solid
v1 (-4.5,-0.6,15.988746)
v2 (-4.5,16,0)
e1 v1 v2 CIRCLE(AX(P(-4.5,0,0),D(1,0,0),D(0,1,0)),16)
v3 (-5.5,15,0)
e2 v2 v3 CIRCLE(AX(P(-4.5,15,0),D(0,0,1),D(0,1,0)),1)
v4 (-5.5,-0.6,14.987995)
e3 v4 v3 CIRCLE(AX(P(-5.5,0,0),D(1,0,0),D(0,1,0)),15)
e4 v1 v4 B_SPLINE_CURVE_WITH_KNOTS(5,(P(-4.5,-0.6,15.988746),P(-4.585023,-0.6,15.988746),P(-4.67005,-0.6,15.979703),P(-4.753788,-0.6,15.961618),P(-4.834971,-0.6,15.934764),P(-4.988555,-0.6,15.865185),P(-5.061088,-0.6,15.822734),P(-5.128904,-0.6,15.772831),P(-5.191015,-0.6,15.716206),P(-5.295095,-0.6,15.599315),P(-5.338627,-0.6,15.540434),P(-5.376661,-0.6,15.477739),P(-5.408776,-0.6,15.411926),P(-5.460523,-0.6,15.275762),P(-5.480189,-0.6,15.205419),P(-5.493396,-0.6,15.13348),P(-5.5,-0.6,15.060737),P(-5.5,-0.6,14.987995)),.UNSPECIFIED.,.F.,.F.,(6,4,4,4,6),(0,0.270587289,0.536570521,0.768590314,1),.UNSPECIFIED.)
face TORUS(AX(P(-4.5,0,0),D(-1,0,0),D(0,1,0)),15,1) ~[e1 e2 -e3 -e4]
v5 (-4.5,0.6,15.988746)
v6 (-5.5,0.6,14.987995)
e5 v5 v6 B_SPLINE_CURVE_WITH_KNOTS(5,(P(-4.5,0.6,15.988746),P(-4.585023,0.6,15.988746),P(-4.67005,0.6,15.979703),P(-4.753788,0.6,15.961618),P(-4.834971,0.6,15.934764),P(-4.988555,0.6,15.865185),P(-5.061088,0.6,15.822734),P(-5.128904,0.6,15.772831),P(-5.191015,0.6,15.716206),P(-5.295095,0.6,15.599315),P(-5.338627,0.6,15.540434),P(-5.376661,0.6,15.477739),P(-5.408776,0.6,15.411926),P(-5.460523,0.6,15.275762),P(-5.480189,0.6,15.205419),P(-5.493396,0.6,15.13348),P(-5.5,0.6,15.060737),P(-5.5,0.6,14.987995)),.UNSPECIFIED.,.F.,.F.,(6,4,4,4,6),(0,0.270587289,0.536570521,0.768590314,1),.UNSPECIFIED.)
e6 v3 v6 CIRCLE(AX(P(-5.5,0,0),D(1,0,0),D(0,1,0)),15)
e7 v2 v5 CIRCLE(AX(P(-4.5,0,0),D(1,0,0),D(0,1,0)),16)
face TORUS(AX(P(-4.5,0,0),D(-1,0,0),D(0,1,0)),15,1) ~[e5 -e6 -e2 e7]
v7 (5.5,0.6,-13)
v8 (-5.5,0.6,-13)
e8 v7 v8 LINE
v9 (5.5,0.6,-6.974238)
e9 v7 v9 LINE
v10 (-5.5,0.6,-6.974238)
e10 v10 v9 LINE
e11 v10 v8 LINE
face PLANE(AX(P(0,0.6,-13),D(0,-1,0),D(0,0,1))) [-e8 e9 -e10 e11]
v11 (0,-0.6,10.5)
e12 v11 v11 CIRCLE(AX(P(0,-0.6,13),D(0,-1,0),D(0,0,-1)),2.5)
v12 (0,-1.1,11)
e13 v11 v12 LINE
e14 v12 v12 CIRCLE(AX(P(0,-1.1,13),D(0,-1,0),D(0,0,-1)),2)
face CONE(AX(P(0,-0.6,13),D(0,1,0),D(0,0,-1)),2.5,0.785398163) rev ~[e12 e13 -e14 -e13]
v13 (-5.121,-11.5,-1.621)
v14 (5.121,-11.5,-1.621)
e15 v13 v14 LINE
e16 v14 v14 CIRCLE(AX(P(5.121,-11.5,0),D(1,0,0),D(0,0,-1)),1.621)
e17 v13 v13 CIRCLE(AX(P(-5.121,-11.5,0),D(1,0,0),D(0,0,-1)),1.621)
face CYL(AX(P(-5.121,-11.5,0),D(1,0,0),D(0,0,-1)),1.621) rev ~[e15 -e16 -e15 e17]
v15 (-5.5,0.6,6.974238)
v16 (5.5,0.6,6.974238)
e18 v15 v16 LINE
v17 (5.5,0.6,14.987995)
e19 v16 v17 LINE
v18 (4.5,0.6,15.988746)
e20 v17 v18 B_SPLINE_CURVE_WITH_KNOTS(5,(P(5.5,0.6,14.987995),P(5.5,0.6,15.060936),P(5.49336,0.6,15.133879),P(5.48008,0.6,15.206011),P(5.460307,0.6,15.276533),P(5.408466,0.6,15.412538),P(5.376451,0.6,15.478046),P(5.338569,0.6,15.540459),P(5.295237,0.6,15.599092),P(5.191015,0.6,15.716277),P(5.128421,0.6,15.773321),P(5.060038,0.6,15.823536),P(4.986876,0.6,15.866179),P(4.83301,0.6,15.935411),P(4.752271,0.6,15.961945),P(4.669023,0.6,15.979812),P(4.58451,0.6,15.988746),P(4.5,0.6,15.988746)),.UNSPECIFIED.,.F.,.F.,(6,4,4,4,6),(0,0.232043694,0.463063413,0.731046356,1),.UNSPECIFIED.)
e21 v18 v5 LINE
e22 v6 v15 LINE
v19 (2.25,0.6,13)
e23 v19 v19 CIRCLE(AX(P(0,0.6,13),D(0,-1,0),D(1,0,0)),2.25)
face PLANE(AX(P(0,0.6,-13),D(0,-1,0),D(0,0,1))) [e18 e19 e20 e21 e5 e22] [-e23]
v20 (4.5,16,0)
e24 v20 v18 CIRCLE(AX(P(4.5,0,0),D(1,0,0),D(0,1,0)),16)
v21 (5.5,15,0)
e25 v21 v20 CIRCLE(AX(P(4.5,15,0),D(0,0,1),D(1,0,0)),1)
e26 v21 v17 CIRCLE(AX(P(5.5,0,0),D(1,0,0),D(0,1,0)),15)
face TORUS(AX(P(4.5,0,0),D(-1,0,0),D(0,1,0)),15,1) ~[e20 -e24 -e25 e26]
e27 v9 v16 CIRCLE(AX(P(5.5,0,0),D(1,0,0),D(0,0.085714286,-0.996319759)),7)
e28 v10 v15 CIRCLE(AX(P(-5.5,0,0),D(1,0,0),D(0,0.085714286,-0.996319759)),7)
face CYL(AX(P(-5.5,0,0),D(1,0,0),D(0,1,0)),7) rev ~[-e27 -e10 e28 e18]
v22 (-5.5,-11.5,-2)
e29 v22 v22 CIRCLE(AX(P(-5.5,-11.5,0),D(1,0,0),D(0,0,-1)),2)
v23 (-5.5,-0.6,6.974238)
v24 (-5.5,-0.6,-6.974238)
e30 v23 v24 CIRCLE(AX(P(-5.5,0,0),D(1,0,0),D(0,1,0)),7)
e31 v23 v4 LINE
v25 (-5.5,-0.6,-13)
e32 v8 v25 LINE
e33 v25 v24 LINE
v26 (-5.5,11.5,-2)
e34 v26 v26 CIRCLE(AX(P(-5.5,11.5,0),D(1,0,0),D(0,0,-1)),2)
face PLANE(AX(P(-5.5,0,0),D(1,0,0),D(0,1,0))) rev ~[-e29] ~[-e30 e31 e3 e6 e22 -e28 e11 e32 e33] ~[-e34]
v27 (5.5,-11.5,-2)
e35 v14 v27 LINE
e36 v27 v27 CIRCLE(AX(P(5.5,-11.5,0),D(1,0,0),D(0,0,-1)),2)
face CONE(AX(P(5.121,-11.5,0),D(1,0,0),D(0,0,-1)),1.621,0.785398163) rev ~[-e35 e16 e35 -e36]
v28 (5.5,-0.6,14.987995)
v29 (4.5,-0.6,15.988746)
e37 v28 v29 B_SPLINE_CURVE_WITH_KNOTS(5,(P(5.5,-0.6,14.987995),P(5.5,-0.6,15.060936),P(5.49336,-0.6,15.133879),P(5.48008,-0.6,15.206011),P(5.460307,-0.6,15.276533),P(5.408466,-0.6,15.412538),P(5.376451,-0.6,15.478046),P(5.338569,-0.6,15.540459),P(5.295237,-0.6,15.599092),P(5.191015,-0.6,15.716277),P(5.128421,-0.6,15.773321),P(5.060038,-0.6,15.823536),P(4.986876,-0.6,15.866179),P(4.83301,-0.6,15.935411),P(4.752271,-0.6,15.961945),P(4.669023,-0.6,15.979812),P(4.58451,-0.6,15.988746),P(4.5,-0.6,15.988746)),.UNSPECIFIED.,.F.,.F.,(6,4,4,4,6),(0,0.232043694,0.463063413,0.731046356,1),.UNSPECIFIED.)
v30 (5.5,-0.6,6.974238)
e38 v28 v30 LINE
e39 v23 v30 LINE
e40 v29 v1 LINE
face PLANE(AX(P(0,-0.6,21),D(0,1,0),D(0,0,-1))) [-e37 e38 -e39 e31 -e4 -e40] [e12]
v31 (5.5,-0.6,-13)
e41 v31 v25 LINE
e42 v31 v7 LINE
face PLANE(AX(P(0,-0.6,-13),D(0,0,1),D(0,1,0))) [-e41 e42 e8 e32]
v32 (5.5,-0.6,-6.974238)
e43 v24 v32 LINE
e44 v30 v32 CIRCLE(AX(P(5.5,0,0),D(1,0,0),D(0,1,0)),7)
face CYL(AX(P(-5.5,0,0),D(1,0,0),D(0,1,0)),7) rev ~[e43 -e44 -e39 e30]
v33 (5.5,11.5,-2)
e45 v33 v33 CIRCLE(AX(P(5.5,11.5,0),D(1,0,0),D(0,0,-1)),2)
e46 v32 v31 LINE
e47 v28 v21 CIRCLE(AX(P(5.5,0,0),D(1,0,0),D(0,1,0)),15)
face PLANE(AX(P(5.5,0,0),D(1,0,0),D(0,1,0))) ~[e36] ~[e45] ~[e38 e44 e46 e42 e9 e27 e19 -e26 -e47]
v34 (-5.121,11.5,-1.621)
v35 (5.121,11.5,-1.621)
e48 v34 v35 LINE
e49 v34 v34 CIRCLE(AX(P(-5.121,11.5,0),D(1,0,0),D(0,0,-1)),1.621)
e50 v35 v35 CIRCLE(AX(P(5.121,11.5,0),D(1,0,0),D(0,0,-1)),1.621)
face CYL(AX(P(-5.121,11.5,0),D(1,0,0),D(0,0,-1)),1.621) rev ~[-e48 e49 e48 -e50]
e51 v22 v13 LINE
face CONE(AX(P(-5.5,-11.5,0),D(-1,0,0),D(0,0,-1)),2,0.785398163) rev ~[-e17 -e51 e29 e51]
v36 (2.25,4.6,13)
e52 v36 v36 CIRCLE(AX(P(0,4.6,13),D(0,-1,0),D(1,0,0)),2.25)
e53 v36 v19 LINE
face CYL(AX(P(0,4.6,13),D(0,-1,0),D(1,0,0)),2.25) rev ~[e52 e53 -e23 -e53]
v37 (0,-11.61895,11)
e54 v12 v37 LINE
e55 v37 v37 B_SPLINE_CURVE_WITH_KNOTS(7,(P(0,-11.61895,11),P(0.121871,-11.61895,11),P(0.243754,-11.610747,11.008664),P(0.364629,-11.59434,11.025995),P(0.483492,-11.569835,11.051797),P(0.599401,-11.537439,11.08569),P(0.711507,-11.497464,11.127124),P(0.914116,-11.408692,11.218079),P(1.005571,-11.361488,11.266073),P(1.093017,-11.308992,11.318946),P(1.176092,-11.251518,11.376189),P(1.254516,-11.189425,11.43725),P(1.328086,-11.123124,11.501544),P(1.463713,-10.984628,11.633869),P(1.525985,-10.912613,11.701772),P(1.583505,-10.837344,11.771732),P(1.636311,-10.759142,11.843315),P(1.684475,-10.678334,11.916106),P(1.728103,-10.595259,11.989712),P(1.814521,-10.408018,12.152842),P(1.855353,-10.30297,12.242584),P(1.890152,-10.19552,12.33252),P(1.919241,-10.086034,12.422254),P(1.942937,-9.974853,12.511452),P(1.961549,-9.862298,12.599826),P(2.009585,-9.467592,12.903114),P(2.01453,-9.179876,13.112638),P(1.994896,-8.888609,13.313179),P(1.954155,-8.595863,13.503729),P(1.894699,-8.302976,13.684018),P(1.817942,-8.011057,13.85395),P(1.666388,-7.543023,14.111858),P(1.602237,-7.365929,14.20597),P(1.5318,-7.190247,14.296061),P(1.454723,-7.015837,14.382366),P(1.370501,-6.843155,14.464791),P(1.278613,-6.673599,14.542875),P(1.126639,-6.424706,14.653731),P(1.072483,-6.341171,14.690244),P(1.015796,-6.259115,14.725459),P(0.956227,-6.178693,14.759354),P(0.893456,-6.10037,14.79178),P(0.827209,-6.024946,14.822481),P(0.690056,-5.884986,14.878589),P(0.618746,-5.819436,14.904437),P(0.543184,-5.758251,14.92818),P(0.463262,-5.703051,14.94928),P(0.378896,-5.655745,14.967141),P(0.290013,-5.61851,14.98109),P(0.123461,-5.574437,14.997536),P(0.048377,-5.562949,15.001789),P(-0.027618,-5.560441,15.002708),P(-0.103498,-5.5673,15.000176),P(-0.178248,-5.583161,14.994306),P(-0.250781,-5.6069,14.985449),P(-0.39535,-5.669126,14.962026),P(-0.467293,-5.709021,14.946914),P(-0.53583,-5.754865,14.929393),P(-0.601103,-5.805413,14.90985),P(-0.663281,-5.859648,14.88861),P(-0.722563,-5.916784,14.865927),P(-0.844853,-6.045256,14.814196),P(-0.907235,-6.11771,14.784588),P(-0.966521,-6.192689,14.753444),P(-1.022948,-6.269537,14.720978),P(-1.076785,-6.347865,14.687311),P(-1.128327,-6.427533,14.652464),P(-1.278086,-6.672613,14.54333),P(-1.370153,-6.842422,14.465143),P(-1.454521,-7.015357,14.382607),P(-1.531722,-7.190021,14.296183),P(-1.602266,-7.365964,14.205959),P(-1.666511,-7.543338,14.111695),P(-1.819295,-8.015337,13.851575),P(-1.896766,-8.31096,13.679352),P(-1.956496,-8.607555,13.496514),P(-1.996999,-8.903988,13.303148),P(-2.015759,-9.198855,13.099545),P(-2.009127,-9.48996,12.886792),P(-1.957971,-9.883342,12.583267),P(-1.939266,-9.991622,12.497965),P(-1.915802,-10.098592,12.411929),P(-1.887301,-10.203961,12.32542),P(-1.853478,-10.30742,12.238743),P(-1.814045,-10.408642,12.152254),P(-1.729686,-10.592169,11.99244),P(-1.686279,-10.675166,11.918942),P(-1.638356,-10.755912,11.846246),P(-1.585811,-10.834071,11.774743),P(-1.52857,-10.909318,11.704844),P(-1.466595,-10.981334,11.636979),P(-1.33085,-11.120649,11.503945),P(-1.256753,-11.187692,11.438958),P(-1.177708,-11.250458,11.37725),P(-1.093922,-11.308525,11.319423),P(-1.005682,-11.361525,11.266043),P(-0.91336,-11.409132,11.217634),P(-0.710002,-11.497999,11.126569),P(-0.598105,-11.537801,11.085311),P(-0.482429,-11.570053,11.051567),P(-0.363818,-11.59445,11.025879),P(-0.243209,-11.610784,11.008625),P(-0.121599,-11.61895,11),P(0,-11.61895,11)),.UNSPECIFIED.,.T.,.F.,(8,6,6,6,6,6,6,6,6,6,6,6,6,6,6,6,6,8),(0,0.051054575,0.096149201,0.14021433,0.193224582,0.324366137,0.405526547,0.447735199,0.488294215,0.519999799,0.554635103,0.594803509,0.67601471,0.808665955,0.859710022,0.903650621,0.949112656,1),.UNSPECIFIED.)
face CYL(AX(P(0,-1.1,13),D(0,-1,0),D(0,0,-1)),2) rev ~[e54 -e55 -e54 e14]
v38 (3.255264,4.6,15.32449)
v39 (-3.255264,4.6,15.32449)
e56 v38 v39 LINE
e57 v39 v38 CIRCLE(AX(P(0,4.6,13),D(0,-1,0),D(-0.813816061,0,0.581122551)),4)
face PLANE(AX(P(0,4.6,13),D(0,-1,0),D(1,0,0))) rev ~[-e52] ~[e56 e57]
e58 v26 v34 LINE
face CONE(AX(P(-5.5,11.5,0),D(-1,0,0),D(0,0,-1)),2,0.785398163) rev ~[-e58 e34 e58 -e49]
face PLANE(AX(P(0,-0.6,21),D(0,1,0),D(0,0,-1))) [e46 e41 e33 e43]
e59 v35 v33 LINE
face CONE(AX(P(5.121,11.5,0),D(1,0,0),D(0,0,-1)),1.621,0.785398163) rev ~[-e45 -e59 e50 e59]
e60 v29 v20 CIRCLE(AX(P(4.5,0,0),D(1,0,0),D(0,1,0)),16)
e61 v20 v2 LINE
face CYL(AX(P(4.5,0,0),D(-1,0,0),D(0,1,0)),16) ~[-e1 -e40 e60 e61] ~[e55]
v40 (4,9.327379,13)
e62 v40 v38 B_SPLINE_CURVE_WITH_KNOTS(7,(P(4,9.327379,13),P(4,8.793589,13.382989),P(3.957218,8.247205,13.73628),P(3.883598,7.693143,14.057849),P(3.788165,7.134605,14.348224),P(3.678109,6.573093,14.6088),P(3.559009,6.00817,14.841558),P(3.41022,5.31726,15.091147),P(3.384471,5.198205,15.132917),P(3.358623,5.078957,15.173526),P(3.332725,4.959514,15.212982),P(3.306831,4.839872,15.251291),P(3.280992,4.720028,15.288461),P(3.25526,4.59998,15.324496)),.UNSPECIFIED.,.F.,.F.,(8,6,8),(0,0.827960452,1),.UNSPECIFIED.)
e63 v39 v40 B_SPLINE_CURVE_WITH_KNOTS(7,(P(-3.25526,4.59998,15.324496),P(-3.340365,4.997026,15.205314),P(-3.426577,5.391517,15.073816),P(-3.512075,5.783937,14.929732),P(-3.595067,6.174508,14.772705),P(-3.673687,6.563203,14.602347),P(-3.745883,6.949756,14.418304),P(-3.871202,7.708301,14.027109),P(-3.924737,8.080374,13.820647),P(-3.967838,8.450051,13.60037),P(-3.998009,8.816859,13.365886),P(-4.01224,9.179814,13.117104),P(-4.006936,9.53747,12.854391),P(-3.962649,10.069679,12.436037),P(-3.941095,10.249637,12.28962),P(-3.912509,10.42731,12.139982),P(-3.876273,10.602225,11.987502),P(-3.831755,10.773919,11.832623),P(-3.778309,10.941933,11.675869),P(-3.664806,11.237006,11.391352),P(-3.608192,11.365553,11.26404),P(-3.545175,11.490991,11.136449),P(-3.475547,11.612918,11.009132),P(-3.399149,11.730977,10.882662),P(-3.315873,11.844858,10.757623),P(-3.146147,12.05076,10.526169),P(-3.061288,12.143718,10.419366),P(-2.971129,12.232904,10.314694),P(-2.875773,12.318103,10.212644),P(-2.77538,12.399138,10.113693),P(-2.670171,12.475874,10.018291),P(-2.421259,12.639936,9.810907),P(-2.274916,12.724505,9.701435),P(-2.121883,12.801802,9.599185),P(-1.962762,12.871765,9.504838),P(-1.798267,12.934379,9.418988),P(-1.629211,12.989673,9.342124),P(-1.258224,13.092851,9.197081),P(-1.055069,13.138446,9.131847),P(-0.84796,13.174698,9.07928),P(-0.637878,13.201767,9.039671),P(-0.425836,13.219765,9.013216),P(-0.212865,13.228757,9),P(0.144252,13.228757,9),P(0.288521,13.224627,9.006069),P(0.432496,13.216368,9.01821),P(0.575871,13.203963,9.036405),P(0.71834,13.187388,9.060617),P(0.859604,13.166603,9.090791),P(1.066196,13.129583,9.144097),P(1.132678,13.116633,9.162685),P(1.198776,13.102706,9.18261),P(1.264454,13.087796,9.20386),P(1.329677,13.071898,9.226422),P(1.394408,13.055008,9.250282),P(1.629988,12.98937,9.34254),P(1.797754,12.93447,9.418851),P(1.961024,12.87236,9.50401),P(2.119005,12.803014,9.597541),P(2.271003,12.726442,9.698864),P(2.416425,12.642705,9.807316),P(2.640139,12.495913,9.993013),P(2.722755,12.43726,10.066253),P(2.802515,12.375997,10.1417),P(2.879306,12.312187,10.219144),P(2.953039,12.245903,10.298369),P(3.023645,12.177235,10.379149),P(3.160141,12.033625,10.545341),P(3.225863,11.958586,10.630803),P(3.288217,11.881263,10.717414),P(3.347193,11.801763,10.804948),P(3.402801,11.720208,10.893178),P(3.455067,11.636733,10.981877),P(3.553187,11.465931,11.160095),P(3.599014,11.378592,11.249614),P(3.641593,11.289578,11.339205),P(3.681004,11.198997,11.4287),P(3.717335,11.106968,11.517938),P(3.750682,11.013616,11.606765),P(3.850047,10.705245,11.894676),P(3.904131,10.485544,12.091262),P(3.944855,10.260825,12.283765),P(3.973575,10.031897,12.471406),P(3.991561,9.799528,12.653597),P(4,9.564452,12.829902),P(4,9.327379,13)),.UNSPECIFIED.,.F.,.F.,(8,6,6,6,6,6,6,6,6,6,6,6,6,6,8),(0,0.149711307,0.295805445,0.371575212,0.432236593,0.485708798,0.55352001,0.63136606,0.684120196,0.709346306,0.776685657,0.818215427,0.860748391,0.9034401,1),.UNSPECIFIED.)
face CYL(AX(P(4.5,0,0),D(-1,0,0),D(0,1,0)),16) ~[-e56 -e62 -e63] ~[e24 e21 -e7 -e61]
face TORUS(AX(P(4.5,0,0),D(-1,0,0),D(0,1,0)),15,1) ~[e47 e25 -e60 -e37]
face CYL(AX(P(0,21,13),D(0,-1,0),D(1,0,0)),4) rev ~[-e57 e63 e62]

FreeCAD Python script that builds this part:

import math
import FreeCAD as App
import Part
import Sketcher
Q = App.Units.Quantity


def add_polygon(sketch, points):
    """Adds a closed chain of lines whose ends are joined by coincident constraints."""
    first, n = sketch.GeometryCount, len(points)
    for a, b in zip(points, points[1:] + points[:1]):
        sketch.addGeometry(Part.LineSegment(App.Vector(*a, 0), App.Vector(*b, 0)), False)
    for i in range(n):
        sketch.addConstraint(Sketcher.Constraint("Coincident", first + i, 2, first + (i + 1) % n, 1))

doc = App.newDocument("Part")
body = doc.addObject("PartDesign::Body", "Body")

# Sketch on XY plane
sketch1 = body.newObject("Sketcher::SketchObject", "Sketch")
sketch1.AttachmentSupport = (doc.getObject("XY_Plane"), [""])
sketch1.MapMode = "FlatFace"
sketch1.addGeometry([
    Part.ArcOfCircle(Part.Circle(App.Vector(-4.5, 15, 0), App.Vector(0, 0, 1), 1), math.radians(90), math.radians(180)),  # 0
    Part.LineSegment(App.Vector(-5.5, 15, 0), App.Vector(-5.5, 7, 0)),  # 1
    Part.LineSegment(App.Vector(-5.5, 7, 0), App.Vector(5.5, 7, 0)),  # 2
    Part.LineSegment(App.Vector(5.5, 7, 0), App.Vector(5.5, 15, 0)),  # 3
    Part.ArcOfCircle(Part.Circle(App.Vector(4.5, 15, 0), App.Vector(0, 0, 1), 1), math.radians(0), math.radians(90)),  # 4
    Part.LineSegment(App.Vector(4.5, 16, 0), App.Vector(-4.5, 16, 0)),  # 5
], False)
sketch1.addConstraint([
    Sketcher.Constraint("Tangent", 0, 2, 1, 1),
    Sketcher.Constraint("Coincident", 1, 2, 2, 1),
    Sketcher.Constraint("Coincident", 2, 2, 3, 1),
    Sketcher.Constraint("Tangent", 3, 2, 4, 1),
    Sketcher.Constraint("Tangent", 4, 2, 5, 1),
    Sketcher.Constraint("Tangent", 5, 2, 0, 1),
    Sketcher.Constraint("Vertical", 1),
    Sketcher.Constraint("Horizontal", 2),
    Sketcher.Constraint("Vertical", 3),
    Sketcher.Constraint("Horizontal", 5),
    Sketcher.Constraint("Equal", 0, 4),
    Sketcher.Constraint("Radius", 0, 1.0),
    Sketcher.Constraint("DistanceX", 2, 1, 2, 2, 11.0),
    Sketcher.Constraint("DistanceY", 1, 2, 1, 1, 8.0),
    Sketcher.Constraint("DistanceY", -1, 1, 0, 3, 15.0),
    Sketcher.Constraint("DistanceX", 0, 3, -1, 1, 4.5),
])
revolution = body.newObject("PartDesign::Revolution", "Revolution")
revolution.Profile = sketch1
revolution.ReferenceAxis = (sketch1, ["H_Axis"])
revolution.Angle = 360

# Sketch on YZ plane
sketch2 = body.newObject("Sketcher::SketchObject", "Sketch001")
sketch2.AttachmentSupport = (doc.getObject("YZ_Plane"), [""])
sketch2.MapMode = "FlatFace"
add_polygon(sketch2, [(0.6, -13), (0.6, 21), (-0.6, 21), (-0.6, -13)])  # lines 0-3
sketch2.addConstraint([
    Sketcher.Constraint("Vertical", 0),
    Sketcher.Constraint("Horizontal", 1),
    Sketcher.Constraint("Vertical", 2),
    Sketcher.Constraint("Horizontal", 3),
    Sketcher.Constraint("DistanceY", 0, 1, 0, 2, 34.0),
    Sketcher.Constraint("DistanceX", 1, 2, 1, 1, 1.2),
    Sketcher.Constraint("DistanceY", -1, 1, 0, 2, 21.0),
    Sketcher.Constraint("DistanceX", -1, 1, 0, 2, 0.6),
])
pocket1 = body.newObject("PartDesign::Pocket", "Pocket")
pocket1.Profile = sketch2
pocket1.Length = 22
pocket1.Midplane = True

# Sketch on XY plane
sketch3 = body.newObject("Sketcher::SketchObject", "Sketch002")
sketch3.AttachmentSupport = (doc.getObject("XY_Plane"), [""])
sketch3.MapMode = "FlatFace"
sketch3.AttachmentOffset = App.Placement(App.Vector(0, 0, 13), App.Rotation())
add_polygon(sketch3, [(0, 21), (0, 0), (2.2, 0), (2.2, 4.6), (4, 4.6), (4, 21)])  # lines 0-5
sketch3.addConstraint([
    Sketcher.Constraint("Vertical", 0),
    Sketcher.Constraint("Horizontal", 1),
    Sketcher.Constraint("Vertical", 2),
    Sketcher.Constraint("Horizontal", 3),
    Sketcher.Constraint("Vertical", 4),
    Sketcher.Constraint("Horizontal", 5),
    Sketcher.Constraint("Coincident", 0, 2, -1, 1),
    Sketcher.Constraint("DistanceX", 5, 2, 5, 1, 4.0),
    Sketcher.Constraint("DistanceY", 0, 2, 0, 1, 21.0),
    Sketcher.Constraint("DistanceY", 2, 1, 2, 2, 4.6),
    Sketcher.Constraint("DistanceX", 1, 1, 1, 2, 2.25),
])
groove = body.newObject("PartDesign::Groove", "Groove")
groove.Profile = sketch3
groove.ReferenceAxis = (sketch3, ["V_Axis"])
groove.Angle = 360

# Sketch on XZ plane
sketch4 = body.newObject("Sketcher::SketchObject", "Sketch003")
sketch4.AttachmentSupport = (doc.getObject("XZ_Plane"), [""])
sketch4.MapMode = "FlatFace"
sketch4.AttachmentOffset = App.Placement(App.Vector(0, 0, -11.5), App.Rotation())
add_polygon(sketch4, [(-5.5, 0), (5.5, 0), (5.5, -2), (5.1, -1.6), (-5.1, -1.6), (-5.5, -2)])  # lines 0-5
sketch4.addConstraint([
    Sketcher.Constraint("Horizontal", 0),
    Sketcher.Constraint("Vertical", 1),
    Sketcher.Constraint("Horizontal", 3),
    Sketcher.Constraint("Vertical", 5),
    Sketcher.Constraint("Symmetric", 0, 2, 5, 2, -1, 1),
    Sketcher.Constraint("Perpendicular", 2, 4),
    Sketcher.Constraint("Horizontal", 1, 2, 4, 2),
    Sketcher.Constraint("Equal", 2, 4),
    Sketcher.Constraint("DistanceX", 0, 1, 0, 2, 11.0),
    Sketcher.Constraint("DistanceY", 1, 2, 1, 1, 2.0),
    Sketcher.Constraint("DistanceX", 3, 2, 3, 1, 10.242),
])
groove2 = body.newObject("PartDesign::Groove", "Groove001")
groove2.Profile = sketch4
groove2.ReferenceAxis = (sketch4, ["H_Axis"])
groove2.Angle = 360

# Sketch on XZ plane
sketch5 = body.newObject("Sketcher::SketchObject", "Sketch004")
sketch5.AttachmentSupport = (doc.getObject("XZ_Plane"), [""])
sketch5.MapMode = "FlatFace"
sketch5.AttachmentOffset = App.Placement(App.Vector(0, 0, 11.5), App.Rotation())
add_polygon(sketch5, [(-5.5, 0), (5.5, 0), (5.5, -2), (5.1, -1.6), (-5.1, -1.6), (-5.5, -2)])  # lines 0-5
sketch5.addConstraint([
    Sketcher.Constraint("Horizontal", 0),
    Sketcher.Constraint("Vertical", 1),
    Sketcher.Constraint("Horizontal", 3),
    Sketcher.Constraint("Vertical", 5),
    Sketcher.Constraint("Symmetric", 0, 2, 5, 2, -1, 1),
    Sketcher.Constraint("Perpendicular", 2, 4),
    Sketcher.Constraint("Horizontal", 1, 2, 4, 2),
    Sketcher.Constraint("Equal", 2, 4),
    Sketcher.Constraint("DistanceX", 0, 1, 0, 2, 11.0),
    Sketcher.Constraint("DistanceY", 1, 2, 1, 1, 2.0),
    Sketcher.Constraint("DistanceX", 3, 2, 3, 1, 10.242),
])
groove3 = body.newObject("PartDesign::Groove", "Groove002")
groove3.Profile = sketch5
groove3.ReferenceAxis = (sketch5, ["H_Axis"])
groove3.Angle = 360

# Sketch on YZ plane
sketch6 = body.newObject("Sketcher::SketchObject", "Sketch005")
sketch6.AttachmentSupport = (doc.getObject("YZ_Plane"), [""])
sketch6.MapMode = "FlatFace"
add_polygon(sketch6, [(-0.6, 13), (-9.6, 13), (-11.8, 11), (-1.1, 11), (-0.6, 10.5)])  # lines 0-4
sketch6.addGeometry(Part.LineSegment(App.Vector(-0.6, 13, 0), App.Vector(-11.8, 13, 0)), True)  # axis
sketch6.addConstraint([
    Sketcher.Constraint("Horizontal", 0),
    Sketcher.Constraint("Horizontal", 2),
    Sketcher.Constraint("Vertical", 4),
    Sketcher.Constraint("Horizontal", 5),
    Sketcher.Constraint("Coincident", 5, 1, 4, 2),
    Sketcher.Constraint("Vertical", 1, 2, 5, 2),
    Sketcher.Constraint("Angle", 3, Q("-45 deg")),
    Sketcher.Constraint("DistanceY", 4, 1, 4, 2, 2.5),
    Sketcher.Constraint("DistanceY", -1, 1, 0, 2, 13.0),
    Sketcher.Constraint("DistanceY", -1, 1, 1, 2, 11.0),
    Sketcher.Constraint("DistanceX", 2, 2, -1, 1, 1.1),
    Sketcher.Constraint("DistanceX", 2, 1, 2, 2, 10.747),
    Sketcher.Constraint("DistanceX", 0, 2, 0, 1, 8.9555),
])
groove4 = body.newObject("PartDesign::Groove", "Groove003")
groove4.Profile = sketch6
groove4.ReferenceAxis = (sketch6, ["Axis0"])
groove4.Angle = 360

doc.recompute()
